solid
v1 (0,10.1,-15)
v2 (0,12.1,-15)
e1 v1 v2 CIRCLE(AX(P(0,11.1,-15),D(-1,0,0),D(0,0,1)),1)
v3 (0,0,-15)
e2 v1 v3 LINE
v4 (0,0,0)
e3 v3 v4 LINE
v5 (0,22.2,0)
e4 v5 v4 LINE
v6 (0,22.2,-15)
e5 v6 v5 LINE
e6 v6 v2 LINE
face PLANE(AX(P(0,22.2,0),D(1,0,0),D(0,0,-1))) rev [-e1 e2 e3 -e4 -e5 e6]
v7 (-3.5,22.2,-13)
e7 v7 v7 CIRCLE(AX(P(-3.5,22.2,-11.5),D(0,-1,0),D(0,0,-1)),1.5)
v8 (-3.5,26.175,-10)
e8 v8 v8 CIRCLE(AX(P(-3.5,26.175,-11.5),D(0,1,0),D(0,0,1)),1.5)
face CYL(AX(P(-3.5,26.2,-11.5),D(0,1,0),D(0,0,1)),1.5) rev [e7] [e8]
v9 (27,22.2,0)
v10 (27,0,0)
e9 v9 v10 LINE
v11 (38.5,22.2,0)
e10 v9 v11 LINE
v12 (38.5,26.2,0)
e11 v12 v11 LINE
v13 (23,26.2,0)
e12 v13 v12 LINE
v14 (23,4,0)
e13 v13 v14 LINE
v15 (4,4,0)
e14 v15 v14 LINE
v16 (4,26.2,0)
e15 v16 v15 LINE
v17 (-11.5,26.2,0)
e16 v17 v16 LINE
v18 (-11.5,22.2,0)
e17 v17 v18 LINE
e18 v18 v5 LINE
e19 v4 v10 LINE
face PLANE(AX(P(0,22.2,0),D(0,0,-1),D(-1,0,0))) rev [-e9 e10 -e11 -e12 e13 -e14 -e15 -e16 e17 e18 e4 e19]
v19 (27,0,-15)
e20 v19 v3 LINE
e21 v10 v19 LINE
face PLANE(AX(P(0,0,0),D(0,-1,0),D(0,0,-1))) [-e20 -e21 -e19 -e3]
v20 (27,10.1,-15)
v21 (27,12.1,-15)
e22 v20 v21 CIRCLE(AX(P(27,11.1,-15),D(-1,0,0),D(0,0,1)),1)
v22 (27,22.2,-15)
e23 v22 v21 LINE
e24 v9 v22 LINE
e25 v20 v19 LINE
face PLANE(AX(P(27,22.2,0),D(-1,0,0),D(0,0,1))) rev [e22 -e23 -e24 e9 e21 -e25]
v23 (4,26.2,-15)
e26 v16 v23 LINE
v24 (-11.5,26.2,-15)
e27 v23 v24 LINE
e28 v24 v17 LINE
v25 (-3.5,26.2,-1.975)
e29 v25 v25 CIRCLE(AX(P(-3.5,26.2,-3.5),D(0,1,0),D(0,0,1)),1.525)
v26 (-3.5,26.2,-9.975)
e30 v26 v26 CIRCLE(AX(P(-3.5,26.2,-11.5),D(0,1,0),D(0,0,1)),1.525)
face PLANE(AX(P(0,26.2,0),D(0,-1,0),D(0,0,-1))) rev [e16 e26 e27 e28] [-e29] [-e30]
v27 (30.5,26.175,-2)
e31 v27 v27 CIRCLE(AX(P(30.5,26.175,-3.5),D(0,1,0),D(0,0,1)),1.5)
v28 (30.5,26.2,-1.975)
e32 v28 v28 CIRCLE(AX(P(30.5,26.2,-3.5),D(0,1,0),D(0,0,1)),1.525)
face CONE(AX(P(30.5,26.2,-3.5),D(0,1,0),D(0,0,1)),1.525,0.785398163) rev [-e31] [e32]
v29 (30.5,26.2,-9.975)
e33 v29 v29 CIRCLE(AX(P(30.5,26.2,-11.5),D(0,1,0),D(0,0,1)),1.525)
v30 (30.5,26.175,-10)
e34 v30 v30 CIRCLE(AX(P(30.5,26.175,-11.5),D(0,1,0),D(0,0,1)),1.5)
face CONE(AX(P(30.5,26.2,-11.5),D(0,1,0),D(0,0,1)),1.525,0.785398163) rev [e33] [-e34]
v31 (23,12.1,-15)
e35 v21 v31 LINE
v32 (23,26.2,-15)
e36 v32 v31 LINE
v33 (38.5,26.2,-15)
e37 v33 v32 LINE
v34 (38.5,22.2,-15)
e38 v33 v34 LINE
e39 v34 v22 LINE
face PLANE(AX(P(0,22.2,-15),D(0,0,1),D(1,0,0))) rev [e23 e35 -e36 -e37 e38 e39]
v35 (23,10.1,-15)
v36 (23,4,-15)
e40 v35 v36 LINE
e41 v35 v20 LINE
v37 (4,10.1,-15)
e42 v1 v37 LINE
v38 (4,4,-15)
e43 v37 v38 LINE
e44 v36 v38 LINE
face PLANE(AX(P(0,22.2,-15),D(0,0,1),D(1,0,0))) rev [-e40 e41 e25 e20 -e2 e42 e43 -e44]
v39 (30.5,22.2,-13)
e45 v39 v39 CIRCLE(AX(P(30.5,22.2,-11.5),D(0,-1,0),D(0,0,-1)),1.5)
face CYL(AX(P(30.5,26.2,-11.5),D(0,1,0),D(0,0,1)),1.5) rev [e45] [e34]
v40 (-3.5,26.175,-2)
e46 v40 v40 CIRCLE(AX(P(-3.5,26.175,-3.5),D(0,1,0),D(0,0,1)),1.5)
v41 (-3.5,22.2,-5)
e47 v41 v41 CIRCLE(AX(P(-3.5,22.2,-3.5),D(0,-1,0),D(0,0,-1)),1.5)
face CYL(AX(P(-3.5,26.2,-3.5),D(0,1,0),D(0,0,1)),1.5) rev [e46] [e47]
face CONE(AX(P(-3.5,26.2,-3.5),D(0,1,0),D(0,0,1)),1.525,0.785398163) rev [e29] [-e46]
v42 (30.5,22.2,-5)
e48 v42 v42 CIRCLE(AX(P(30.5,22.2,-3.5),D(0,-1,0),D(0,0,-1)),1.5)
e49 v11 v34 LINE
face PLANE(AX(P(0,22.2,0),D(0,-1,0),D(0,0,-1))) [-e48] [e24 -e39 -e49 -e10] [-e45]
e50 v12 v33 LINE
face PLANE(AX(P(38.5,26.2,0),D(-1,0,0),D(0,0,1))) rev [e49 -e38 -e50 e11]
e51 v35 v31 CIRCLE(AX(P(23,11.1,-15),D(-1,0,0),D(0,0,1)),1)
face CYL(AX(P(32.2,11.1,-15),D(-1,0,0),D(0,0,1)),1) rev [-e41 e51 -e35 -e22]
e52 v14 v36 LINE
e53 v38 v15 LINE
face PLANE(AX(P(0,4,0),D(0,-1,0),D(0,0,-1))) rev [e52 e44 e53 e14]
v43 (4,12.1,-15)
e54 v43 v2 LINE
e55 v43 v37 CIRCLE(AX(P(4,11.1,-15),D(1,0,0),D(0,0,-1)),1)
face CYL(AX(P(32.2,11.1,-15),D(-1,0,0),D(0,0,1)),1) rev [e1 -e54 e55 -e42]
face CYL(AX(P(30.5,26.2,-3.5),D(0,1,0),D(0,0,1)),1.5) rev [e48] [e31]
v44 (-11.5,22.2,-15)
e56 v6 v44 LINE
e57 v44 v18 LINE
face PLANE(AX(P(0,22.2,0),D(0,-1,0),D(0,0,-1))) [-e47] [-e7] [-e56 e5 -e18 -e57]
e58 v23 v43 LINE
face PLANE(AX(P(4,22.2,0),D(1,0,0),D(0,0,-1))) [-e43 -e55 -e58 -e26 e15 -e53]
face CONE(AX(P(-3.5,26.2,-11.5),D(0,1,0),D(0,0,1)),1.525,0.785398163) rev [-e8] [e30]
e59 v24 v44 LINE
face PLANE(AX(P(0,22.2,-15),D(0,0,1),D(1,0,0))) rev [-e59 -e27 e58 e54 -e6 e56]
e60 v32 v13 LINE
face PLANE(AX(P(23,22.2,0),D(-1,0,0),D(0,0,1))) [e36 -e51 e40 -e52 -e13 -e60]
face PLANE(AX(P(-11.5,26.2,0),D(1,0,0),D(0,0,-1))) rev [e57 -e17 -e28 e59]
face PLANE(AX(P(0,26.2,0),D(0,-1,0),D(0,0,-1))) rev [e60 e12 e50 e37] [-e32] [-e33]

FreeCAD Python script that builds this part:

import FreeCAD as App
import Part
import Sketcher

V = App.Vector


def faces_at(feature, points):
    """Names of the faces that lie closest to the given points."""
    faces = feature.Shape.Faces
    near = lambda p: min(range(len(faces)), key=lambda i: faces[i].distToShape(Part.Vertex(*p))[0])
    return sorted({f"Face{near(p) + 1}" for p in points})


def add_polygon(sketch, points):
    """Adds a closed chain of lines whose ends are joined by coincident constraints."""
    first, n = sketch.GeometryCount, len(points)
    for a, b in zip(points, points[1:] + points[:1]):
        sketch.addGeometry(Part.LineSegment(App.Vector(*a, 0), App.Vector(*b, 0)), False)
    for i in range(n):
        sketch.addConstraint(Sketcher.Constraint("Coincident", first + i, 2, first + (i + 1) % n, 1))

doc = App.newDocument("Part")
body = doc.addObject("PartDesign::Body", "Body")

# Sketch on XZ plane
sketch1 = body.newObject("Sketcher::SketchObject", "Sketch")
sketch1.AttachmentSupport = (doc.getObject("XZ_Plane"), [""])
sketch1.MapMode = "FlatFace"
add_polygon(sketch1, [(0, -15), (0, 0), (27, 0), (27, -15)])  # lines 0-3
sketch1.addConstraint([
    Sketcher.Constraint("Vertical", 0),
    Sketcher.Constraint("Horizontal", 1),
    Sketcher.Constraint("Vertical", 2),
    Sketcher.Constraint("Horizontal", 3),
    Sketcher.Constraint("Coincident", 0, 2, -1, 1),
    Sketcher.Constraint("DistanceX", 1, 1, 1, 2, 27.0),
    Sketcher.Constraint("DistanceY", 0, 1, 0, 2, 15.0),
])
pad1 = body.newObject("PartDesign::Pad", "Pad")
pad1.Profile = sketch1
pad1.Length = 22.2
pad1.Reversed = True
doc.recompute()

thickness = body.newObject("PartDesign::Thickness", "Thickness")
thickness.Base = (pad1, faces_at(pad1, [(13.5, 22.2, -7.5), (13.5, 11.1, -15), (13.5, 11.1, 0)]))
thickness.Value = 4
thickness.Reversed = True
thickness.Join = "Intersection"

# Sketch on YZ plane
sketch2 = body.newObject("Sketcher::SketchObject", "Sketch001")
sketch2.AttachmentSupport = (doc.getObject("YZ_Plane"), [""])
sketch2.MapMode = "FlatFace"
sketch2.addGeometry(Part.Circle(V(11.1, -15, 0), V(0, 0, 1), 1), False)
sketch2.addConstraint([
    Sketcher.Constraint("Diameter", 0, 2.0),
    Sketcher.Constraint("DistanceY", 0, 3, -1, 1, 15.0),
    Sketcher.Constraint("DistanceX", -1, 1, 0, 3, 11.1),
])
pocket1 = body.newObject("PartDesign::Pocket", "Pocket")
pocket1.Profile = sketch2
pocket1.Length = 32.2
pocket1.Reversed = True

# Sketch on XZ plane
sketch3 = body.newObject("Sketcher::SketchObject", "Sketch002")
sketch3.AttachmentSupport = (doc.getObject("XZ_Plane"), [""])
sketch3.MapMode = "FlatFace"
sketch3.AttachmentOffset = App.Placement(V(0, 0, -22.2), App.Rotation())
add_polygon(sketch3, [(-12, -15), (-12, 0), (38, 0), (38, -15)])  # lines 0-3
sketch3.addConstraint([
    Sketcher.Constraint("Vertical", 0),
    Sketcher.Constraint("Horizontal", 1),
    Sketcher.Constraint("Vertical", 2),
    Sketcher.Constraint("Horizontal", 3),
    Sketcher.Constraint("PointOnObject", 0, 2, -1),
    Sketcher.Constraint("DistanceX", 1, 1, 1, 2, 50.0),
    Sketcher.Constraint("DistanceY", 0, 1, 0, 2, 15.0),
    Sketcher.Constraint("DistanceX", 0, 2, -1, 1, 11.5),
])
pad2 = body.newObject("PartDesign::Pad", "Pad001")
pad2.Profile = sketch3
pad2.Length = 4
pad2.Reversed = True

# Sketch on XZ plane
sketch4 = body.newObject("Sketcher::SketchObject", "Sketch003")
sketch4.AttachmentSupport = (doc.getObject("XZ_Plane"), [""])
sketch4.MapMode = "FlatFace"
sketch4.AttachmentOffset = App.Placement(V(0, 0, -22.2), App.Rotation())
add_polygon(sketch4, [(4, 0), (4, -15), (23, -15), (23, 0)])  # lines 0-3
sketch4.addConstraint([
    Sketcher.Constraint("Vertical", 0),
    Sketcher.Constraint("Horizontal", 1),
    Sketcher.Constraint("Vertical", 2),
    Sketcher.Constraint("Horizontal", 3),
    Sketcher.Constraint("PointOnObject", 2, 2, -1),
    Sketcher.Constraint("DistanceX", 1, 1, 1, 2, 19.0),
    Sketcher.Constraint("DistanceY", 0, 2, 0, 1, 15.0),
    Sketcher.Constraint("DistanceX", -1, 1, 0, 2, 4.0),
])
pocket2 = body.newObject("PartDesign::Pocket", "Pocket001")
pocket2.Profile = sketch4
pocket2.Length = 8

# Sketch on XZ plane
sketch5 = body.newObject("Sketcher::SketchObject", "Sketch004")
sketch5.AttachmentSupport = (doc.getObject("XZ_Plane"), [""])
sketch5.MapMode = "FlatFace"
sketch5.AttachmentOffset = App.Placement(V(0, 0, -26.2), App.Rotation())
sketch5.addGeometry([
    Part.Circle(V(-3.5, -11.5, 0), V(0, 0, 1), 1.5),
    Part.Circle(V(-3.5, -3.5, 0), V(0, 0, 1), 1.5),
    Part.Circle(V(30.5, -11.5, 0), V(0, 0, 1), 1.5),
    Part.Circle(V(30.5, -3.5, 0), V(0, 0, 1), 1.5),
], False)
sketch5.addConstraint([
    Sketcher.Constraint("Equal", 0, 1),
    Sketcher.Constraint("Equal", 1, 2),
    Sketcher.Constraint("Equal", 2, 3),
    Sketcher.Constraint("Horizontal", 0, 3, 2, 3),
    Sketcher.Constraint("Horizontal", 1, 3, 3, 3),
    Sketcher.Constraint("Vertical", 0, 3, 1, 3),
    Sketcher.Constraint("Vertical", 2, 3, 3, 3),
    Sketcher.Constraint("Diameter", 0, 3.0),
    Sketcher.Constraint("DistanceY", 0, 3, 1, 3, 8.0),
    Sketcher.Constraint("DistanceX", 0, 3, 2, 3, 34.0),
    Sketcher.Constraint("DistanceX", 0, 3, -1, 1, 3.5),
    Sketcher.Constraint("DistanceY", 0, 3, -1, 1, 11.5),
])
doc.recompute()
hole = body.newObject("PartDesign::Hole", "Hole")
hole.Profile = sketch5
hole.ThreadType = "None"
hole.Diameter = 3
hole.DepthType = "ThroughAll"
hole.HoleCutType = "Countersink"
hole.HoleCutDiameter = 3.05
hole.HoleCutCountersinkAngle = 90
hole.Reversed = True

doc.recompute()
